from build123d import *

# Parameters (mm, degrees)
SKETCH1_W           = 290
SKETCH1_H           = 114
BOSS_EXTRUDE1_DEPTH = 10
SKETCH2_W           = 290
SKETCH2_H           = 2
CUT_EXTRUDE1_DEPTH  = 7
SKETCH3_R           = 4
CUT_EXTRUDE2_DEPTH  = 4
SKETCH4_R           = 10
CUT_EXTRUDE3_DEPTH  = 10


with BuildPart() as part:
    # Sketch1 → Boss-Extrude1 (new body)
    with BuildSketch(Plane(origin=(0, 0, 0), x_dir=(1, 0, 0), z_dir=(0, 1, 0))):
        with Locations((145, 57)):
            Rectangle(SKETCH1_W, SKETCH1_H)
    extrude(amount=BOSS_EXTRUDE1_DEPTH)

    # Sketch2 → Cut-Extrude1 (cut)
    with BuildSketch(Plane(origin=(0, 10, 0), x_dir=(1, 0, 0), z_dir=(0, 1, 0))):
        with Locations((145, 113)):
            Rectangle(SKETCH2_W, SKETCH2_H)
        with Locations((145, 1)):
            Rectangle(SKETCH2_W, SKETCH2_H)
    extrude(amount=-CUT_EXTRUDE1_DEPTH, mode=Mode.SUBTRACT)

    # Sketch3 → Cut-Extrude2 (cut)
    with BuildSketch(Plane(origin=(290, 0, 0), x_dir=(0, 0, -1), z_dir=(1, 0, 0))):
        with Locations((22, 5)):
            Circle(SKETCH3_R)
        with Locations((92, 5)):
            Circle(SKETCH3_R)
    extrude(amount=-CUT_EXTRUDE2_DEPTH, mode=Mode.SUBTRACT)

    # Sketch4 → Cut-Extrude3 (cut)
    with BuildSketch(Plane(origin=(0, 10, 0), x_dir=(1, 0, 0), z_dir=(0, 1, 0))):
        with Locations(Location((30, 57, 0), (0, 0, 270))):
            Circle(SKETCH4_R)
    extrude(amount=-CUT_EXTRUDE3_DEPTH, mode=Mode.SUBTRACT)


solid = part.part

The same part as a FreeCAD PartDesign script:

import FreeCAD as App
import Part
import Sketcher


def add_polygon(sketch, points):
    """Adds a closed chain of lines whose ends are joined by coincident constraints."""
    first, n = sketch.GeometryCount, len(points)
    for a, b in zip(points, points[1:] + points[:1]):
        sketch.addGeometry(Part.LineSegment(App.Vector(*a, 0), App.Vector(*b, 0)), False)
    for i in range(n):
        sketch.addConstraint(Sketcher.Constraint("Coincident", first + i, 2, first + (i + 1) % n, 1))

doc = App.newDocument("Part")
params = doc.addObject("Spreadsheet::Sheet", "Params")
for row, (alias, value) in enumerate([
    ("sketch1_width", "290 mm"),
    ("sketch1_height", "114 mm"),
    ("pad1_length", "10 mm"),
    ("sketch2_width", "290 mm"),
    ("sketch2_height", "2 mm"),
    ("pocket1_length", "7 mm"),
    ("sketch3_diameter", "8 mm"),
    ("pocket2_length", "4 mm"),
    ("sketch4_diameter", "20 mm"),
    ("pocket3_length", "10 mm"),
], start=1):
    params.set(f"A{row}", alias)
    params.set(f"B{row}", "=" + value)
    params.setAlias(f"B{row}", alias)

body = doc.addObject("PartDesign::Body", "Body")

sketch1 = body.newObject("Sketcher::SketchObject", "Sketch")
sketch1.AttachmentSupport = (doc.getObject("XZ_Plane"), [""])
sketch1.MapMode = "FlatFace"
add_polygon(sketch1, [(0, -114), (0, 0), (290, 0), (290, -114)])
sketch1.addConstraint(Sketcher.Constraint("Vertical", 0))
sketch1.addConstraint(Sketcher.Constraint("Horizontal", 1))
sketch1.addConstraint(Sketcher.Constraint("Vertical", 2))
sketch1.addConstraint(Sketcher.Constraint("Horizontal", 3))
sketch1.addConstraint(Sketcher.Constraint("Coincident", 0, 2, -1, 1))
sketch1.addConstraint(Sketcher.Constraint("DistanceX", 1, 1, 1, 2, 290.0))
sketch1.addConstraint(Sketcher.Constraint("DistanceY", 0, 1, 0, 2, 114.0))
sketch1.setExpression("Constraints[9]", "Params.sketch1_width")
sketch1.setExpression("Constraints[10]", "Params.sketch1_height")
pad1 = body.newObject("PartDesign::Pad", "Pad")
pad1.Profile = sketch1
pad1.setExpression("Length", "Params.pad1_length")
pad1.Reversed = True

sketch2 = body.newObject("Sketcher::SketchObject", "Sketch001")
sketch2.AttachmentSupport = (doc.getObject("XZ_Plane"), [""])
sketch2.MapMode = "FlatFace"
sketch2.AttachmentOffset = App.Placement(App.Vector(0, 0, -10), App.Rotation())
add_polygon(sketch2, [(0, -114), (0, -112), (290, -112), (290, -114)])
add_polygon(sketch2, [(0, -2), (0, 0), (290, 0), (290, -2)])
sketch2.addConstraint(Sketcher.Constraint("Vertical", 0))
sketch2.addConstraint(Sketcher.Constraint("Horizontal", 1))
sketch2.addConstraint(Sketcher.Constraint("Vertical", 2))
sketch2.addConstraint(Sketcher.Constraint("Horizontal", 3))
sketch2.addConstraint(Sketcher.Constraint("Vertical", 4))
sketch2.addConstraint(Sketcher.Constraint("Horizontal", 5))
sketch2.addConstraint(Sketcher.Constraint("Vertical", 6))
sketch2.addConstraint(Sketcher.Constraint("Horizontal", 7))
sketch2.addConstraint(Sketcher.Constraint("Coincident", 4, 2, -1, 1))
sketch2.addConstraint(Sketcher.Constraint("PointOnObject", 0, 2, -2))
sketch2.addConstraint(Sketcher.Constraint("Vertical", 2, 2, 5, 2))
sketch2.addConstraint(Sketcher.Constraint("Equal", 2, 4))
sketch2.addConstraint(Sketcher.Constraint("DistanceX", 1, 1, 1, 2, 290.0))
sketch2.addConstraint(Sketcher.Constraint("DistanceY", 0, 1, 0, 2, 2.0))
sketch2.addConstraint(Sketcher.Constraint("DistanceY", 0, 2, -1, 1, 112.0))
sketch2.setExpression("Constraints[20]", "Params.sketch2_width")
sketch2.setExpression("Constraints[21]", "Params.sketch2_height")
pocket1 = body.newObject("PartDesign::Pocket", "Pocket")
pocket1.Profile = sketch2
pocket1.setExpression("Length", "Params.pocket1_length")
pocket1.Reversed = True

sketch3 = body.newObject("Sketcher::SketchObject", "Sketch002")
sketch3.AttachmentSupport = (doc.getObject("YZ_Plane"), [""])
sketch3.MapMode = "FlatFace"
sketch3.AttachmentOffset = App.Placement(App.Vector(0, 0, 290), App.Rotation())
sketch3.addGeometry(Part.Circle(App.Vector(5, -22, 0), App.Vector(0, 0, 1), 4), False)
sketch3.addGeometry(Part.Circle(App.Vector(5, -92, 0), App.Vector(0, 0, 1), 4), False)
sketch3.addConstraint(Sketcher.Constraint("Equal", 0, 1))
sketch3.addConstraint(Sketcher.Constraint("Vertical", 0, 3, 1, 3))
sketch3.addConstraint(Sketcher.Constraint("Diameter", 0, 8.0))
sketch3.addConstraint(Sketcher.Constraint("DistanceX", -1, 1, 0, 3, 5.0))
sketch3.addConstraint(Sketcher.Constraint("DistanceY", 0, 3, -1, 1, 22.0))
sketch3.addConstraint(Sketcher.Constraint("DistanceY", 1, 3, -1, 1, 92.0))
sketch3.setExpression("Constraints[2]", "Params.sketch3_diameter")
pocket2 = body.newObject("PartDesign::Pocket", "Pocket001")
pocket2.Profile = sketch3
pocket2.setExpression("Length", "Params.pocket2_length")

sketch4 = body.newObject("Sketcher::SketchObject", "Sketch003")
sketch4.AttachmentSupport = (doc.getObject("XZ_Plane"), [""])
sketch4.MapMode = "FlatFace"
sketch4.AttachmentOffset = App.Placement(App.Vector(0, 0, -10), App.Rotation())
sketch4.addGeometry(Part.Circle(App.Vector(30, -57, 0), App.Vector(0, 0, 1), 10), False)
sketch4.addConstraint(Sketcher.Constraint("Diameter", 0, 20.0))
sketch4.addConstraint(Sketcher.Constraint("DistanceX", -1, 1, 0, 3, 30.0))
sketch4.addConstraint(Sketcher.Constraint("DistanceY", 0, 3, -1, 1, 57.0))
sketch4.setExpression("Constraints[0]", "Params.sketch4_diameter")
pocket3 = body.newObject("PartDesign::Pocket", "Pocket002")
pocket3.Profile = sketch4
pocket3.setExpression("Length", "Params.pocket3_length")
pocket3.Reversed = True

doc.recompute()
